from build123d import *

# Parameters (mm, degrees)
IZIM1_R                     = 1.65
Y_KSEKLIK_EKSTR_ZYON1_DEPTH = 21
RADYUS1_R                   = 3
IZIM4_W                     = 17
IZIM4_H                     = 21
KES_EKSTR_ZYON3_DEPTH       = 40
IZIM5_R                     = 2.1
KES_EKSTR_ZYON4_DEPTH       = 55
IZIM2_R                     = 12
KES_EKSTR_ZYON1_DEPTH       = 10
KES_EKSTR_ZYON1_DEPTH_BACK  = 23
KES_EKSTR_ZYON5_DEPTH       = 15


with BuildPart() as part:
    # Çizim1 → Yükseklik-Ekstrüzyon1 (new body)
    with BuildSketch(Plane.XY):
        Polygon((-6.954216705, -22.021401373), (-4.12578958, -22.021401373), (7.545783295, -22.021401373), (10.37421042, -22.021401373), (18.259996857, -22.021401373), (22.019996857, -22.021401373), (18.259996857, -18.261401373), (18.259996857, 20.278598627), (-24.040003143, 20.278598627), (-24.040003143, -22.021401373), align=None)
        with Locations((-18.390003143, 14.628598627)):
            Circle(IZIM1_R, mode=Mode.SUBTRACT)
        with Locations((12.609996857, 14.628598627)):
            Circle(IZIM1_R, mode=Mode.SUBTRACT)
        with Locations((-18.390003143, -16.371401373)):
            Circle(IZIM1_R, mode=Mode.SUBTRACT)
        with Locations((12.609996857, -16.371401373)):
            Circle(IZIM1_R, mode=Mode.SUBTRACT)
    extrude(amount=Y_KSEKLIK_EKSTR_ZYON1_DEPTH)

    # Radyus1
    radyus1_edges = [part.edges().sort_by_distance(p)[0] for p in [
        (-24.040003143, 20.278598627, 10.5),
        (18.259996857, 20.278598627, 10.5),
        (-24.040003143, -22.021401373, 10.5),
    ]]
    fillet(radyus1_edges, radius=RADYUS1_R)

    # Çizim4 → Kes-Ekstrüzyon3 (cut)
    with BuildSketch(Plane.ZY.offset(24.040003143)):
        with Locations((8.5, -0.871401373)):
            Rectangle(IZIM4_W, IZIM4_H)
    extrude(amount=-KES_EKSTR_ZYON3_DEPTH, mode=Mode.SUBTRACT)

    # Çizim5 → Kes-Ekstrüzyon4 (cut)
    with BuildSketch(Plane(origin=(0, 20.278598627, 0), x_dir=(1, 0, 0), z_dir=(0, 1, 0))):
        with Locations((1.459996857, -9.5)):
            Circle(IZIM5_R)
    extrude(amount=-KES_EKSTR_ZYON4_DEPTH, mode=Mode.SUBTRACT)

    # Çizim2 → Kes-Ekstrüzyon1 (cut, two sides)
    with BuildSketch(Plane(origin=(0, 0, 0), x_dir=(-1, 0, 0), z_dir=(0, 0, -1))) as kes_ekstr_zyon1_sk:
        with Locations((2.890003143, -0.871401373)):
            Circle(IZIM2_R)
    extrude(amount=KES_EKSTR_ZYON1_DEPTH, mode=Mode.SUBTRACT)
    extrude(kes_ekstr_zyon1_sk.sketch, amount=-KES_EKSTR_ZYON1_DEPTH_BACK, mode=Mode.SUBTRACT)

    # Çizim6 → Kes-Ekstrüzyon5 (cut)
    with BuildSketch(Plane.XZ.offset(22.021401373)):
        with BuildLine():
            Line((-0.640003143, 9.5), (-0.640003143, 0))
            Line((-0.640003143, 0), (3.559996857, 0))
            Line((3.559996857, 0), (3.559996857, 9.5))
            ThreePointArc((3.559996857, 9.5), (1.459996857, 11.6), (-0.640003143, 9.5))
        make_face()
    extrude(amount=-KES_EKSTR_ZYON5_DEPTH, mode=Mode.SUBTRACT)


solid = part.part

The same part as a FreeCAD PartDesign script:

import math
import FreeCAD as App
import Part
import Sketcher

V = App.Vector
Q = App.Units.Quantity


def edges_at(feature, points):
    """Names of the edges that pass closest to the given points."""
    edges = feature.Shape.Edges
    near = lambda p: min(range(len(edges)), key=lambda i: edges[i].distToShape(Part.Vertex(*p))[0])
    return sorted({f"Edge{near(p) + 1}" for p in points})


def add_polygon(sketch, points):
    """Adds a closed chain of lines whose ends are joined by coincident constraints."""
    first, n = sketch.GeometryCount, len(points)
    for a, b in zip(points, points[1:] + points[:1]):
        sketch.addGeometry(Part.LineSegment(App.Vector(*a, 0), App.Vector(*b, 0)), False)
    for i in range(n):
        sketch.addConstraint(Sketcher.Constraint("Coincident", first + i, 2, first + (i + 1) % n, 1))

doc = App.newDocument("Part")
body = doc.addObject("PartDesign::Body", "Body")

sketch1 = body.newObject("Sketcher::SketchObject", "Sketch")
sketch1.AttachmentSupport = (doc.getObject("XY_Plane"), [""])
sketch1.MapMode = "FlatFace"
add_polygon(sketch1, [(22.019997, -22.021401), (18.259997, -18.261401), (18.259997, 20.278599), (-24.040003, 20.278599), (-24.040003, -22.021401)])
sketch1.addGeometry(Part.Circle(V(-18.390003, -16.371401, 0), V(0, 0, 1), 1.65), False)
sketch1.addGeometry(Part.Circle(V(12.609997, -16.371401, 0), V(0, 0, 1), 1.65), False)
sketch1.addGeometry(Part.Circle(V(-18.390003, 14.628599, 0), V(0, 0, 1), 1.65), False)
sketch1.addGeometry(Part.Circle(V(12.609997, 14.628599, 0), V(0, 0, 1), 1.65), False)
sketch1.addConstraint(Sketcher.Constraint("Vertical", 1))
sketch1.addConstraint(Sketcher.Constraint("Horizontal", 2))
sketch1.addConstraint(Sketcher.Constraint("Vertical", 3))
sketch1.addConstraint(Sketcher.Constraint("Horizontal", 4))
sketch1.addConstraint(Sketcher.Constraint("Equal", 5, 6))
sketch1.addConstraint(Sketcher.Constraint("Equal", 6, 7))
sketch1.addConstraint(Sketcher.Constraint("Equal", 7, 8))
sketch1.addConstraint(Sketcher.Constraint("Horizontal", 5, 3, 6, 3))
sketch1.addConstraint(Sketcher.Constraint("Horizontal", 7, 3, 8, 3))
sketch1.addConstraint(Sketcher.Constraint("Vertical", 5, 3, 7, 3))
sketch1.addConstraint(Sketcher.Constraint("Vertical", 6, 3, 8, 3))
sketch1.addConstraint(Sketcher.Constraint("Equal", 2, 3))
sketch1.addConstraint(Sketcher.Constraint("Diameter", 5, 3.3))
sketch1.addConstraint(Sketcher.Constraint("Angle", 0, Q("135 deg")))
sketch1.addConstraint(Sketcher.Constraint("DistanceX", 2, 2, 2, 1, 42.3))
sketch1.addConstraint(Sketcher.Constraint("DistanceX", 5, 3, 6, 3, 31.0))
sketch1.addConstraint(Sketcher.Constraint("DistanceY", 5, 3, 7, 3, 31.0))
sketch1.addConstraint(Sketcher.Constraint("DistanceX", 4, 1, 4, 2, 46.06))
sketch1.addConstraint(Sketcher.Constraint("DistanceX", 6, 3, 0, 2, 5.65))
sketch1.addConstraint(Sketcher.Constraint("DistanceY", 0, 2, 6, 3, 1.89))
sketch1.addConstraint(Sketcher.Constraint("DistanceY", 5, 3, -1, 1, 16.371401))
sketch1.addConstraint(Sketcher.Constraint("DistanceX", 5, 3, -1, 1, 18.390003))
pad1 = body.newObject("PartDesign::Pad", "Pad")
pad1.Profile = sketch1
pad1.Length = 21
doc.recompute()

fillet = body.newObject("PartDesign::Fillet", "Fillet")
fillet.Base = (pad1, edges_at(pad1, [(-24.04, 20.279, 10.5), (18.26, 20.279, 10.5), (-24.04, -22.021, 10.5)]))
fillet.Radius = 3

sketch2 = body.newObject("Sketcher::SketchObject", "Sketch001")
sketch2.AttachmentSupport = (doc.getObject("YZ_Plane"), [""])
sketch2.MapMode = "FlatFace"
sketch2.AttachmentOffset = App.Placement(V(0, 0, -24.040003), App.Rotation())
add_polygon(sketch2, [(9.628599, 0), (-11.371401, 0), (-11.371401, 17), (9.628599, 17)])
sketch2.addConstraint(Sketcher.Constraint("Horizontal", 0))
sketch2.addConstraint(Sketcher.Constraint("Vertical", 1))
sketch2.addConstraint(Sketcher.Constraint("Horizontal", 2))
sketch2.addConstraint(Sketcher.Constraint("Vertical", 3))
sketch2.addConstraint(Sketcher.Constraint("PointOnObject", 0, 2, -1))
sketch2.addConstraint(Sketcher.Constraint("DistanceX", 0, 2, 0, 1, 21.0))
sketch2.addConstraint(Sketcher.Constraint("DistanceY", 1, 1, 1, 2, 17.0))
sketch2.addConstraint(Sketcher.Constraint("DistanceX", 0, 2, -1, 1, 11.371401))
pocket1 = body.newObject("PartDesign::Pocket", "Pocket")
pocket1.Profile = sketch2
pocket1.Length = 40
pocket1.Reversed = True

sketch3 = body.newObject("Sketcher::SketchObject", "Sketch002")
sketch3.AttachmentSupport = (doc.getObject("XZ_Plane"), [""])
sketch3.MapMode = "FlatFace"
sketch3.AttachmentOffset = App.Placement(V(0, 0, -20.278599), App.Rotation())
sketch3.addGeometry(Part.Circle(V(1.459997, 9.5, 0), V(0, 0, 1), 2.1), False)
sketch3.addConstraint(Sketcher.Constraint("Diameter", 0, 4.2))
sketch3.addConstraint(Sketcher.Constraint("DistanceY", -1, 1, 0, 3, 9.5))
sketch3.addConstraint(Sketcher.Constraint("DistanceX", -1, 1, 0, 3, 1.459997))
pocket2 = body.newObject("PartDesign::Pocket", "Pocket001")
pocket2.Profile = sketch3
pocket2.Length = 55
pocket2.Reversed = True

sketch4 = body.newObject("Sketcher::SketchObject", "Sketch003")
sketch4.AttachmentSupport = (doc.getObject("XY_Plane"), [""])
sketch4.MapMode = "FlatFace"
sketch4.addGeometry(Part.Circle(V(-2.890003, -0.871401, 0), V(0, 0, 1), 12), False)
sketch4.addConstraint(Sketcher.Constraint("Diameter", 0, 24.0))
sketch4.addConstraint(Sketcher.Constraint("DistanceY", 0, 3, -1, 1, 0.871401))
sketch4.addConstraint(Sketcher.Constraint("DistanceX", 0, 3, -1, 1, 2.890003))
pocket3 = body.newObject("PartDesign::Pocket", "Pocket002")
pocket3.Profile = sketch4
pocket3.Type = "ThroughAll"
pocket3.Midplane = True

sketch5 = body.newObject("Sketcher::SketchObject", "Sketch004")
sketch5.AttachmentSupport = (doc.getObject("XZ_Plane"), [""])
sketch5.MapMode = "FlatFace"
sketch5.AttachmentOffset = App.Placement(V(0, 0, 22.021401), App.Rotation())
sketch5.addGeometry(Part.LineSegment(V(-0.640003, 9.5, 0), V(-0.640003, 0, 0)), False)
sketch5.addGeometry(Part.LineSegment(V(-0.640003, 0, 0), V(3.559997, 0, 0)), False)
sketch5.addGeometry(Part.LineSegment(V(3.559997, 0, 0), V(3.559997, 9.5, 0)), False)
sketch5.addGeometry(Part.ArcOfCircle(Part.Circle(V(1.459997, 9.5, 0), V(0, 0, 1), 2.1), math.radians(0), math.radians(180)), False)
sketch5.addConstraint(Sketcher.Constraint("Coincident", 0, 2, 1, 1))
sketch5.addConstraint(Sketcher.Constraint("Coincident", 1, 2, 2, 1))
sketch5.addConstraint(Sketcher.Constraint("Tangent", 2, 2, 3, 1))
sketch5.addConstraint(Sketcher.Constraint("Tangent", 3, 2, 0, 1))
sketch5.addConstraint(Sketcher.Constraint("Vertical", 0))
sketch5.addConstraint(Sketcher.Constraint("Horizontal", 1))
sketch5.addConstraint(Sketcher.Constraint("Vertical", 2))
sketch5.addConstraint(Sketcher.Constraint("PointOnObject", 0, 2, -1))
sketch5.addConstraint(Sketcher.Constraint("Radius", 3, 2.1))
sketch5.addConstraint(Sketcher.Constraint("DistanceY", 0, 2, 0, 1, 9.5))
sketch5.addConstraint(Sketcher.Constraint("DistanceX", -1, 1, 3, 3, 1.459997))
pocket4 = body.newObject("PartDesign::Pocket", "Pocket003")
pocket4.Profile = sketch5
pocket4.Length = 15

doc.recompute()
